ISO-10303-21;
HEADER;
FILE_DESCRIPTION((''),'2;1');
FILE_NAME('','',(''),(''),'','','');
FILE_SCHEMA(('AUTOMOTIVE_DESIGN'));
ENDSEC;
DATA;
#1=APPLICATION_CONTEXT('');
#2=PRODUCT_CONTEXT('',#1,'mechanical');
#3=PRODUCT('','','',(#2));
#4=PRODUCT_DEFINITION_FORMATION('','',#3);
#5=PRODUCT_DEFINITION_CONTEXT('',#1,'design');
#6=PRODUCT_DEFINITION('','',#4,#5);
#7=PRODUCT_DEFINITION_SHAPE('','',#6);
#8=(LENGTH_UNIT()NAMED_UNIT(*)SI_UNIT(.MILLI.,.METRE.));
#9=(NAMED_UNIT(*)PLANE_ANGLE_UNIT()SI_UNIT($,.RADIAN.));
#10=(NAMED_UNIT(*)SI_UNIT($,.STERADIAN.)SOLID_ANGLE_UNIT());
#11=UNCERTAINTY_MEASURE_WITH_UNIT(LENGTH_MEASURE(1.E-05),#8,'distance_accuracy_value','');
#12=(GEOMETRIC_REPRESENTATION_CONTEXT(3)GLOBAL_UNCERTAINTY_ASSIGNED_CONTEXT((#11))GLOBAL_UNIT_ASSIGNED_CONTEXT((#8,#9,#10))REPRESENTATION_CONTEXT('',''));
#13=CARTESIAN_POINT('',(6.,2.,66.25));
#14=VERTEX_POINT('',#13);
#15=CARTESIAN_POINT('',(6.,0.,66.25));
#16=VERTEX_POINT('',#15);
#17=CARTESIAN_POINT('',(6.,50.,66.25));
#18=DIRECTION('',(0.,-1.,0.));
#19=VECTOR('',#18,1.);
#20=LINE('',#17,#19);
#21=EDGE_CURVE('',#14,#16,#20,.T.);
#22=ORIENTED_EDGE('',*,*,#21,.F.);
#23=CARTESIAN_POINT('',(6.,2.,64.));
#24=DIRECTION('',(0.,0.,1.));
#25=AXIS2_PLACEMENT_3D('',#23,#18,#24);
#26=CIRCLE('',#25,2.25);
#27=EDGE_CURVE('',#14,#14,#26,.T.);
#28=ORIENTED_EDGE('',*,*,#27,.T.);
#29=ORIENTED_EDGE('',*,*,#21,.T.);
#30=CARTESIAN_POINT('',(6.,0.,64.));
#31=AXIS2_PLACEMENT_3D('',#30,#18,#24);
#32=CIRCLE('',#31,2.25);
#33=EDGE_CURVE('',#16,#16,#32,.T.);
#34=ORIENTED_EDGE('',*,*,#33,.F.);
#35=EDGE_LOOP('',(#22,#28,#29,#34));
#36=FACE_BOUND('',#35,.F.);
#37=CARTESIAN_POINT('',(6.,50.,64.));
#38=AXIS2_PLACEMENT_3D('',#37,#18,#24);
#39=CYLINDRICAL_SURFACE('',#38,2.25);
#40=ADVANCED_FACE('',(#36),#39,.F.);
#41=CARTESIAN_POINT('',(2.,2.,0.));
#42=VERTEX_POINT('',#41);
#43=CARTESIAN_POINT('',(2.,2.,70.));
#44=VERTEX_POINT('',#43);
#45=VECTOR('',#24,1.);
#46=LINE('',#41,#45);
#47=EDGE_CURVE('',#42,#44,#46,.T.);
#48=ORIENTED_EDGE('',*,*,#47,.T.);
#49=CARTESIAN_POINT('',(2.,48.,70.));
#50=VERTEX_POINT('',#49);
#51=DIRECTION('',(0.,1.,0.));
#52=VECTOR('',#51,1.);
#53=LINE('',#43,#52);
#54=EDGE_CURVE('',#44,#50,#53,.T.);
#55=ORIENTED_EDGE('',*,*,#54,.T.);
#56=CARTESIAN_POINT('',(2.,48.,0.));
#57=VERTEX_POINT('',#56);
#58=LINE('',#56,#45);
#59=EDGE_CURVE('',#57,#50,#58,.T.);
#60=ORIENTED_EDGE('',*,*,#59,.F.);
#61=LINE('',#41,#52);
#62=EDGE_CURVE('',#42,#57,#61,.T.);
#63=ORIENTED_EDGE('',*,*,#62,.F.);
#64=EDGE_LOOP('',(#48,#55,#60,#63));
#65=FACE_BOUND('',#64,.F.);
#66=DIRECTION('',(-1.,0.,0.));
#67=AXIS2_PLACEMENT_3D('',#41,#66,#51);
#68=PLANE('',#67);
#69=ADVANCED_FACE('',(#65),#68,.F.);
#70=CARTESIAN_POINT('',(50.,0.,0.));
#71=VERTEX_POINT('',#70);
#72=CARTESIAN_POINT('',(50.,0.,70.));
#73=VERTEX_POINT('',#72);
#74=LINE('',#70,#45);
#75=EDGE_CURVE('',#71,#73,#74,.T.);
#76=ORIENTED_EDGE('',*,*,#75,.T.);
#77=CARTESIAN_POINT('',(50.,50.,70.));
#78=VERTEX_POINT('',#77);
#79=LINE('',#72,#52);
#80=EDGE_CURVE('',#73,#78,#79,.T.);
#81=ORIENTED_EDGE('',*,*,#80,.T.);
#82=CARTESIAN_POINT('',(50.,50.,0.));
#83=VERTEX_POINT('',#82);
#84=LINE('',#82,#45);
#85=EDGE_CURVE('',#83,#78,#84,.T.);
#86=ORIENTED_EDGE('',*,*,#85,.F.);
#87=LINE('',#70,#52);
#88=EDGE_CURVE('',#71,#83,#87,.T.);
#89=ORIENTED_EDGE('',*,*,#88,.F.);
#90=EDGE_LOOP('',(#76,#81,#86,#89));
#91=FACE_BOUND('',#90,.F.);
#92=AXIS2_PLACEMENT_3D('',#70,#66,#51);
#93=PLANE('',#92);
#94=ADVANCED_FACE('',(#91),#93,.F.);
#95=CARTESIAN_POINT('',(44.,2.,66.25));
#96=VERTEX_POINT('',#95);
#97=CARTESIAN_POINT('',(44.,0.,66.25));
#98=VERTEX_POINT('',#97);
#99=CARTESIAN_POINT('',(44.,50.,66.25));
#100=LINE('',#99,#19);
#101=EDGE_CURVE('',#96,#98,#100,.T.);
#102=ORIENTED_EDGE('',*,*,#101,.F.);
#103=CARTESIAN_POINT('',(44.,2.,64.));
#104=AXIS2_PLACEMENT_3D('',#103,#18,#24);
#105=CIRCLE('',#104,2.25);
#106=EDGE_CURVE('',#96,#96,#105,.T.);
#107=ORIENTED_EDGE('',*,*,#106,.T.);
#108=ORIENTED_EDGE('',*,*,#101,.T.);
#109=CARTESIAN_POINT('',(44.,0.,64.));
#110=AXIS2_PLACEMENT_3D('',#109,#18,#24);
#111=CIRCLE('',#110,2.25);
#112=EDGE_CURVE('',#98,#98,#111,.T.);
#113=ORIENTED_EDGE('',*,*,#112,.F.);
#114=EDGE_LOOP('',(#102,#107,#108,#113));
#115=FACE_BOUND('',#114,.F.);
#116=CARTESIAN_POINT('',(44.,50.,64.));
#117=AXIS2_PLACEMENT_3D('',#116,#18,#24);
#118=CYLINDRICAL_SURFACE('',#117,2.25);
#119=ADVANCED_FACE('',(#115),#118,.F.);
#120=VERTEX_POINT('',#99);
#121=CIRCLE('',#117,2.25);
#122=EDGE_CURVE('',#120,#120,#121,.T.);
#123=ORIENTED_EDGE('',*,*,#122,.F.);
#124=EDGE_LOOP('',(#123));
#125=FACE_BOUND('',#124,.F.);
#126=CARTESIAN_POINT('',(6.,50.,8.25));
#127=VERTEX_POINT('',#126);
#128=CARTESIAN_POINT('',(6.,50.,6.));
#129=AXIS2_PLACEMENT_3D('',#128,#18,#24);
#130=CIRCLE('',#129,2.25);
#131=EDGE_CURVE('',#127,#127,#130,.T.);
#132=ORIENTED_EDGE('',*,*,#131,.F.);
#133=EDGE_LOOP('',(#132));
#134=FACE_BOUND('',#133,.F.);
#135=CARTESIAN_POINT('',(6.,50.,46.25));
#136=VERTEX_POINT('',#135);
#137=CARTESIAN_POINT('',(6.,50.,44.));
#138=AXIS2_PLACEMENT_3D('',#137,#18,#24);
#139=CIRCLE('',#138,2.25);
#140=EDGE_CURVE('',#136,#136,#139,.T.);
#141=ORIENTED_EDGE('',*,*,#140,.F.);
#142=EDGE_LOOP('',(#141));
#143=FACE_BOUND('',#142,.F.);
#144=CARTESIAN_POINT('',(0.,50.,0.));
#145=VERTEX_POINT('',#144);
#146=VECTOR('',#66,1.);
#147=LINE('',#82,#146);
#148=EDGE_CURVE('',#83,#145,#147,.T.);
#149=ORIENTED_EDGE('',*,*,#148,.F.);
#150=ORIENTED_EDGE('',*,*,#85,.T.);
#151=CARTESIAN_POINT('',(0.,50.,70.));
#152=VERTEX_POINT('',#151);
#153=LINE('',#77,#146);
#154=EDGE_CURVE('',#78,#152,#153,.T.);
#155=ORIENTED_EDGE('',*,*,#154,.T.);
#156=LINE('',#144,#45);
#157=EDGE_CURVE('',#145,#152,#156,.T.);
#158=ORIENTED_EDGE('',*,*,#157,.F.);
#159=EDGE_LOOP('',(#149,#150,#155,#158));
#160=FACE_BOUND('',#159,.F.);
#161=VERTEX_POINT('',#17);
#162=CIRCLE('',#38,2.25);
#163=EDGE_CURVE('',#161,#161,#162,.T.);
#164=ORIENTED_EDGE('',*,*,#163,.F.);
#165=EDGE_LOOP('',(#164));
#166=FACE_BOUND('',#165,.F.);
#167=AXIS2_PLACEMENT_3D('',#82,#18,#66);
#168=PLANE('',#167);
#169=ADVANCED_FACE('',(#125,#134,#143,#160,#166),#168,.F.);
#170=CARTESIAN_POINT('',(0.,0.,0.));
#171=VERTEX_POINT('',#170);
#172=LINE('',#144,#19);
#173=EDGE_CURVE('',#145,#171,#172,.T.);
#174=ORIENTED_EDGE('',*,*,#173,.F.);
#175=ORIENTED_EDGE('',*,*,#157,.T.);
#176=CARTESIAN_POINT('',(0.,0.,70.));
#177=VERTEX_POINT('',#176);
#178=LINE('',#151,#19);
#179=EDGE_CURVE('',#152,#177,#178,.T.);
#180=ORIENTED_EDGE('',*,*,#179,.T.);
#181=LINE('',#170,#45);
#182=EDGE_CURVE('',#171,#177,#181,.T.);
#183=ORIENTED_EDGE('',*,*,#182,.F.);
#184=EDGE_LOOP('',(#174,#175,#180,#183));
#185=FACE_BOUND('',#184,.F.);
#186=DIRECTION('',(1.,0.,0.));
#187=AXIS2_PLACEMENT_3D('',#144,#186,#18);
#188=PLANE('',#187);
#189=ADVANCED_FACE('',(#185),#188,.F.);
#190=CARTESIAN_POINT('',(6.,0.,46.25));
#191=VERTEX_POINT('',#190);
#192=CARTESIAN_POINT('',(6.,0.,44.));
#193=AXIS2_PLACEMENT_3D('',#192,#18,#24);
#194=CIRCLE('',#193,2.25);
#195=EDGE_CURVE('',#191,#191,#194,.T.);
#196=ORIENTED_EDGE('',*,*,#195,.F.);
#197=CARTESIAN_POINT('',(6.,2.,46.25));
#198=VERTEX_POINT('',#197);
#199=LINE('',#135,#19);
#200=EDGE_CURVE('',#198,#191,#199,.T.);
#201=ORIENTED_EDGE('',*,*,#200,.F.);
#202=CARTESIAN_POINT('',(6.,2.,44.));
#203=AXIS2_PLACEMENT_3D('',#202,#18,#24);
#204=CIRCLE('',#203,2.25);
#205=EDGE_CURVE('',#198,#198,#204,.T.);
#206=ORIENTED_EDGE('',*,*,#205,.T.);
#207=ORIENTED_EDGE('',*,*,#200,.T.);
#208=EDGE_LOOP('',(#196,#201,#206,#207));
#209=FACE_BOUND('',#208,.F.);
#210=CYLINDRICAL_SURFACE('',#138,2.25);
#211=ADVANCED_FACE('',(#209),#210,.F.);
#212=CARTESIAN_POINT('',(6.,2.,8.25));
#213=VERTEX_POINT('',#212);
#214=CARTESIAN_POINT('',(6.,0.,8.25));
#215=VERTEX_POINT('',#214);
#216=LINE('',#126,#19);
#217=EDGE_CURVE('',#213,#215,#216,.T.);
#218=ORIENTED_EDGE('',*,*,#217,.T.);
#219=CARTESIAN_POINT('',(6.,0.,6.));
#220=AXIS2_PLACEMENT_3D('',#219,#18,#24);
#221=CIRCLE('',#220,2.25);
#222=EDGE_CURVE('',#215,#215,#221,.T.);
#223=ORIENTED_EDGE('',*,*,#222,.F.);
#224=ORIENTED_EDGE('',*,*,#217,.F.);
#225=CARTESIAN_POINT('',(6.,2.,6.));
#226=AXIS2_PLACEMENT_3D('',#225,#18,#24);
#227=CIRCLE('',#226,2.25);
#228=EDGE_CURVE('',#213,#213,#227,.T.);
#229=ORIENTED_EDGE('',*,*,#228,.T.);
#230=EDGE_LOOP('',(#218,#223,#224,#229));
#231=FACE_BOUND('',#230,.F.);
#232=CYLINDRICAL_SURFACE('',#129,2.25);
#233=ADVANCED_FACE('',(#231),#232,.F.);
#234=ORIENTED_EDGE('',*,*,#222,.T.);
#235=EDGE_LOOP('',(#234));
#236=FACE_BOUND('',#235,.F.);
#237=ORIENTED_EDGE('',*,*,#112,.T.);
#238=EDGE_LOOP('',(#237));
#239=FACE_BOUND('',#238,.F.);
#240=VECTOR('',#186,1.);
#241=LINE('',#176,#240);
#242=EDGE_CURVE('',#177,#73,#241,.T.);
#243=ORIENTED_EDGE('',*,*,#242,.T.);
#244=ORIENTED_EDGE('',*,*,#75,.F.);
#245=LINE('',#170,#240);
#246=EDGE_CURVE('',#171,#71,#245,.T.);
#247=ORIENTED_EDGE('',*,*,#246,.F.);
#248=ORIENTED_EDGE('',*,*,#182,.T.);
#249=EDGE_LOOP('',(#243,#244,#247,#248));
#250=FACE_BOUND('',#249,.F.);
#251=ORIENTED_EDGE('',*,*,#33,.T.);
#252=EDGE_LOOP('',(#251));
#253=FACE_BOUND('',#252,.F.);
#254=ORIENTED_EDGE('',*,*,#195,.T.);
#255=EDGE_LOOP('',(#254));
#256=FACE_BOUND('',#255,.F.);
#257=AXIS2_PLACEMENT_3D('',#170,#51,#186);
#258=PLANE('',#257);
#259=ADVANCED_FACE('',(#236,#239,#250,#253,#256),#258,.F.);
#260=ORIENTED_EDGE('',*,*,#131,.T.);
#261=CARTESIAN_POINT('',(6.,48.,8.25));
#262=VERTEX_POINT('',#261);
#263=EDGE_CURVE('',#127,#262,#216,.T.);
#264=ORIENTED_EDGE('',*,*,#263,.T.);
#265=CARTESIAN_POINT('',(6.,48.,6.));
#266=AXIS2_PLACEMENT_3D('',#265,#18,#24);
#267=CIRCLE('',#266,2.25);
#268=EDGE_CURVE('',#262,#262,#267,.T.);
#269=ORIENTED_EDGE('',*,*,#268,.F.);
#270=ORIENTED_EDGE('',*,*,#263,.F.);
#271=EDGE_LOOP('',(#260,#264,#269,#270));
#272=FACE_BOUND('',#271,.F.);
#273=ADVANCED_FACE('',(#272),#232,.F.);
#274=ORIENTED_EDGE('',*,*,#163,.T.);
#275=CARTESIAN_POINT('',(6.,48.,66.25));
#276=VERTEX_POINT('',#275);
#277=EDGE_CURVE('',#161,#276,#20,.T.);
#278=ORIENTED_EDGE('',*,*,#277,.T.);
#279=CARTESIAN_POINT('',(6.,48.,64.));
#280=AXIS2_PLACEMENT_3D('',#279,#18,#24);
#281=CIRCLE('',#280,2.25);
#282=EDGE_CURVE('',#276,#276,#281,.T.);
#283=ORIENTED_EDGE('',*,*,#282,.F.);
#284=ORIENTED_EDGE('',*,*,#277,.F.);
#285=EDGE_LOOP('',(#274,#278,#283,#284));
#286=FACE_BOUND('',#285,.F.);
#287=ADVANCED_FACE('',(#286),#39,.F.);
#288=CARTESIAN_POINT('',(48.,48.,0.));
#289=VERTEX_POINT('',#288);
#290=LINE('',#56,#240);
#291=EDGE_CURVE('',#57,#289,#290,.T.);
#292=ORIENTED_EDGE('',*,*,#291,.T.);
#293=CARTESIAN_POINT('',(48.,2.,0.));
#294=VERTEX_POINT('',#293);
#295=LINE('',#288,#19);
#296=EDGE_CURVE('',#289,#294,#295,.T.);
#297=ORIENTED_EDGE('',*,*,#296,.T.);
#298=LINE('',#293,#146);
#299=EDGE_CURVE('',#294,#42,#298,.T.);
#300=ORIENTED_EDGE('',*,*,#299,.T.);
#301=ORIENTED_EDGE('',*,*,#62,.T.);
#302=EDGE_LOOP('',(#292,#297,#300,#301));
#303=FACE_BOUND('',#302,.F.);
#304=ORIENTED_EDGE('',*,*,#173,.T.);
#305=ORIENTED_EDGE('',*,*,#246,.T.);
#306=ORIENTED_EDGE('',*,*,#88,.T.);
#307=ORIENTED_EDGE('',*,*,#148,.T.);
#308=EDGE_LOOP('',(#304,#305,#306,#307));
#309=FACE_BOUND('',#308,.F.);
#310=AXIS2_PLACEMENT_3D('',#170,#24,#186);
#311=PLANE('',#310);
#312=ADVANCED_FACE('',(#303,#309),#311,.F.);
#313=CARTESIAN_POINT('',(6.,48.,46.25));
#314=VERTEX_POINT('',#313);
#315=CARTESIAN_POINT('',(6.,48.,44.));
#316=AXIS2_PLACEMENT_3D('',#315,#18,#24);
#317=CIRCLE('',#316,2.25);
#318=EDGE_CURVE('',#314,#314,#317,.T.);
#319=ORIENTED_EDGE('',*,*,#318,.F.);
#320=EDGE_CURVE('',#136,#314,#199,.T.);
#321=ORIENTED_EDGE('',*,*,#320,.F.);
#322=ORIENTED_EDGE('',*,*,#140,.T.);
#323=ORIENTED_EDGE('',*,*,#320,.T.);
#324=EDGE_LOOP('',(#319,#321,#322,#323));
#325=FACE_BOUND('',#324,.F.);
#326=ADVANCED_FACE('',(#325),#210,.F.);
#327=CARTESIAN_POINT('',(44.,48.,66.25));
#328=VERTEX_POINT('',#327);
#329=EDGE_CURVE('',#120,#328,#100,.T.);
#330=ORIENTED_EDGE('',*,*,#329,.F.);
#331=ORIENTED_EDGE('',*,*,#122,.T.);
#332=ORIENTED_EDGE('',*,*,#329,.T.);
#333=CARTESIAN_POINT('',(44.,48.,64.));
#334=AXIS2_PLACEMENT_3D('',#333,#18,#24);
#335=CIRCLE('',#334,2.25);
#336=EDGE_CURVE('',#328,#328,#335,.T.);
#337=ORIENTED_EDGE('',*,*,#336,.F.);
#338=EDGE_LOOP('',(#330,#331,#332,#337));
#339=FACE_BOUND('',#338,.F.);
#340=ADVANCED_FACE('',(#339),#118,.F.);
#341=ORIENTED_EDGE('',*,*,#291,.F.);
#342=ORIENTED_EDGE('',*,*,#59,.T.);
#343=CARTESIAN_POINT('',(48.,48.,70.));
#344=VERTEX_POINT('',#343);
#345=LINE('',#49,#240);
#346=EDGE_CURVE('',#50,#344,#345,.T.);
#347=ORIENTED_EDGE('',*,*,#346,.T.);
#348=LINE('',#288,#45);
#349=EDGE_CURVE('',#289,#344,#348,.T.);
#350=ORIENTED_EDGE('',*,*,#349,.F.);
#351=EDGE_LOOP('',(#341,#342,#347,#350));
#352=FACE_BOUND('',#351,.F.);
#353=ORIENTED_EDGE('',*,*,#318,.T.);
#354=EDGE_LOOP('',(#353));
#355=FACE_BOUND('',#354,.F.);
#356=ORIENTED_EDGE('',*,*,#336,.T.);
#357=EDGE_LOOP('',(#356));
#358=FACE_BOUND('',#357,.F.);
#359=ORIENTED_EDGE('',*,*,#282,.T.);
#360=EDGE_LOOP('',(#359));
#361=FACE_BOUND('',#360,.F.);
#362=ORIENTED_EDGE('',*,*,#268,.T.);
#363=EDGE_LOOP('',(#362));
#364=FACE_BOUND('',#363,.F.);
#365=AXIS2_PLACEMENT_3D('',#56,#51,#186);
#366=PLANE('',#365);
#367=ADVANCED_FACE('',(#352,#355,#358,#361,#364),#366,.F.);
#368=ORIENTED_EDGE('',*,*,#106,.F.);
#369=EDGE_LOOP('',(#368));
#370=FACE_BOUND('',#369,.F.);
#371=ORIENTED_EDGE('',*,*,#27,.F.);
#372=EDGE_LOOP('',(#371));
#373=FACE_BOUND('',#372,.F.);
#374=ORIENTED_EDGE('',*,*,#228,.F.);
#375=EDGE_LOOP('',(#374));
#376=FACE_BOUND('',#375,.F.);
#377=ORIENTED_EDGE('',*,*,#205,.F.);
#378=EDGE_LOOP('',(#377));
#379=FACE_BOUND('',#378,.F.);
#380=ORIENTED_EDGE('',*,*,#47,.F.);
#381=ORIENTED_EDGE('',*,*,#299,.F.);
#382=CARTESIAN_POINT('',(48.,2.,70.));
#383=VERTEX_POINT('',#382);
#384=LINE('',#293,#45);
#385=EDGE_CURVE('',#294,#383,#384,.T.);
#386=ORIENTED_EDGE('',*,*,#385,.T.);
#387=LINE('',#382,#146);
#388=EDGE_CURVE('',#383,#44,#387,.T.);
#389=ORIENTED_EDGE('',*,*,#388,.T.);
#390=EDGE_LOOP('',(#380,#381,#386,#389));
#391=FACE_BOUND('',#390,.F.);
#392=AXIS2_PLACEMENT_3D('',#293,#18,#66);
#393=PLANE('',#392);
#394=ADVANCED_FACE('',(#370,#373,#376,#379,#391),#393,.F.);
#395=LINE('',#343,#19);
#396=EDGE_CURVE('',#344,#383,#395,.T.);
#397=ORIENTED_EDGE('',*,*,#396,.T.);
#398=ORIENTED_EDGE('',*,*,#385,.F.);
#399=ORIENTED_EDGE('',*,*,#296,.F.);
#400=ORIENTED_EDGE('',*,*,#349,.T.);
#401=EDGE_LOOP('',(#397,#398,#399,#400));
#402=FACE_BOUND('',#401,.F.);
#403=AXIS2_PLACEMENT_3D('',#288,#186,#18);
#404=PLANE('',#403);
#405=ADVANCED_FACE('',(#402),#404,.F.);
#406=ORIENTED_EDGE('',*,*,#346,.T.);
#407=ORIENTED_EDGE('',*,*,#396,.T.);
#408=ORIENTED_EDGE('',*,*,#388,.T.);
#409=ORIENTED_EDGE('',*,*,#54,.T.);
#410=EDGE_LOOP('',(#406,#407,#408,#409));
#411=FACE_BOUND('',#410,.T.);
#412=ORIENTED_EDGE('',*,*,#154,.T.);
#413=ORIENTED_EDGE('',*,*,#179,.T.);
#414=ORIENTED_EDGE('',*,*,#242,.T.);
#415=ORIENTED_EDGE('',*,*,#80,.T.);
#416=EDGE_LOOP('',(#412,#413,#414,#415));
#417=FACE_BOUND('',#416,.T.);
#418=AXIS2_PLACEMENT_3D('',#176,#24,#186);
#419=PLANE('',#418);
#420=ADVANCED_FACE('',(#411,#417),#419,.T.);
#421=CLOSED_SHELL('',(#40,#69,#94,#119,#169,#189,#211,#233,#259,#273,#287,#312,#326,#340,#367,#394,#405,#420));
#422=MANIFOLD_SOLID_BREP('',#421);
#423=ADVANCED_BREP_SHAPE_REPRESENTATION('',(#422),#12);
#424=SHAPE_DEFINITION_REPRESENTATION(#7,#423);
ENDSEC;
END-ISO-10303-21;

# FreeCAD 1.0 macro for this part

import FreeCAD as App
import Part
import Sketcher
from FreeCAD import Vector
Q = App.Units.Quantity


def add_polygon(sketch, points):
    """Adds a closed chain of lines whose ends are joined by coincident constraints."""
    first, n = sketch.GeometryCount, len(points)
    for a, b in zip(points, points[1:] + points[:1]):
        sketch.addGeometry(Part.LineSegment(App.Vector(*a, 0), App.Vector(*b, 0)), False)
    for i in range(n):
        sketch.addConstraint(Sketcher.Constraint("Coincident", first + i, 2, first + (i + 1) % n, 1))

doc = App.newDocument("Part")
body = doc.addObject("PartDesign::Body", "Body")

sketch1 = doc.addObject("Sketcher::SketchObject", "Sketch")
body.addObject(sketch1)
sketch1.AttachmentSupport = (doc.XY_Plane, [""])
sketch1.MapMode = "FlatFace"
add_polygon(sketch1, [(0, 50), (0, 0), (50, 0), (50, 50)])
add_polygon(sketch1, [(2, 2), (2, 48), (48, 48), (48, 2)])
sketch1.addConstraint([
    Sketcher.Constraint("Vertical", 0),
    Sketcher.Constraint("Horizontal", 1),
    Sketcher.Constraint("Vertical", 2),
    Sketcher.Constraint("Horizontal", 3),
    Sketcher.Constraint("Vertical", 4),
    Sketcher.Constraint("Horizontal", 5),
    Sketcher.Constraint("Vertical", 6),
    Sketcher.Constraint("Horizontal", 7),
    Sketcher.Constraint("Coincident", 0, 2, -1, 1),
    Sketcher.Constraint("Equal", 3, 0),
    Sketcher.Constraint("Equal", 7, 4),
    Sketcher.Constraint("DistanceX", 1, 1, 1, 2, Q("50 mm")),
    Sketcher.Constraint("DistanceX", -1, 1, 4, 2, Q("2 mm")),
    Sketcher.Constraint("DistanceY", -1, 1, 6, 2, Q("2 mm")),
    Sketcher.Constraint("DistanceY", 4, 2, 3, 2, Q("2 mm")),
])
pad1 = doc.addObject("PartDesign::Pad", "Pad")
body.addObject(pad1)
pad1.Profile = sketch1
pad1.Length = 70

sketch2 = doc.addObject("Sketcher::SketchObject", "Sketch001")
body.addObject(sketch2)
sketch2.AttachmentSupport = (doc.XZ_Plane, [""])
sketch2.MapMode = "FlatFace"
sketch2.AttachmentOffset = App.Placement(Vector(0, 0, -50), App.Rotation())
sketch2.addGeometry([
    Part.Circle(Vector(44, 64, 0), Vector(0, 0, 1), 2.25),
    Part.Circle(Vector(6, 64, 0), Vector(0, 0, 1), 2.25),
], False)
sketch2.addConstraint([
    Sketcher.Constraint("Equal", 0, 1),
    Sketcher.Constraint("Horizontal", 0, 3, 1, 3),
    Sketcher.Constraint("Diameter", 0, Q("4.5 mm")),
    Sketcher.Constraint("DistanceX", -1, 1, 0, 3, Q("44 mm")),
    Sketcher.Constraint("DistanceY", -1, 1, 0, 3, Q("64 mm")),
    Sketcher.Constraint("DistanceX", -1, 1, 1, 3, Q("6 mm")),
])
doc.recompute()
hole = doc.addObject("PartDesign::Hole", "Hole")
body.addObject(hole)
hole.Profile = sketch2
hole.ThreadType = "None"
hole.Diameter = 4.5
hole.DepthType = "ThroughAll"
hole.Reversed = True

sketch3 = doc.addObject("Sketcher::SketchObject", "Sketch002")
body.addObject(sketch3)
sketch3.AttachmentSupport = (doc.XZ_Plane, [""])
sketch3.MapMode = "FlatFace"
sketch3.AttachmentOffset = App.Placement(Vector(0, 0, -50), App.Rotation())
sketch3.addGeometry([
    Part.Circle(Vector(6, 6, 0), Vector(0, 0, 1), 2.25),
    Part.Circle(Vector(6, 44, 0), Vector(0, 0, 1), 2.25),
], False)
sketch3.addConstraint([
    Sketcher.Constraint("Equal", 0, 1),
    Sketcher.Constraint("Vertical", 0, 3, 1, 3),
    Sketcher.Constraint("Diameter", 0, Q("4.5 mm")),
    Sketcher.Constraint("DistanceX", -1, 1, 0, 3, Q("6 mm")),
    Sketcher.Constraint("DistanceY", -1, 1, 0, 3, Q("6 mm")),
    Sketcher.Constraint("DistanceY", -1, 1, 1, 3, Q("44 mm")),
])
doc.recompute()
hole2 = doc.addObject("PartDesign::Hole", "Hole001")
body.addObject(hole2)
hole2.Profile = sketch3
hole2.ThreadType = "None"
hole2.Diameter = 4.5
hole2.DepthType = "ThroughAll"
hole2.Reversed = True

doc.recompute()
